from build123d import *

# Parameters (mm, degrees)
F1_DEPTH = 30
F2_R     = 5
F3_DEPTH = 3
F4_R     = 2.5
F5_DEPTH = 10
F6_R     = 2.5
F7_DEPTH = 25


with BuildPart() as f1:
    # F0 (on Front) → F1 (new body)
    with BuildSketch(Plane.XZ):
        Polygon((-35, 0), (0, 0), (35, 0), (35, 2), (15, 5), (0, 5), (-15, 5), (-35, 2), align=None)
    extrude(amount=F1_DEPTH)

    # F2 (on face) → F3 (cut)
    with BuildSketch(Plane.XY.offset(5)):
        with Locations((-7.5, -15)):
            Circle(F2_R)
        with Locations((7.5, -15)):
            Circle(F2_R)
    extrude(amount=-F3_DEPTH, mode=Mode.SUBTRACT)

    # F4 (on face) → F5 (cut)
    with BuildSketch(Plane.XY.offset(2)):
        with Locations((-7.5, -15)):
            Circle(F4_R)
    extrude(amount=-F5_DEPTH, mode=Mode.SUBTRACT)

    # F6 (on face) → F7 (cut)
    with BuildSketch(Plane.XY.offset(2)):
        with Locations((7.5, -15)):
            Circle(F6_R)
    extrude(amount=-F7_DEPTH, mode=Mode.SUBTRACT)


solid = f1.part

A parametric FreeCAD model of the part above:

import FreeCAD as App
import Part
import Sketcher

V = App.Vector
Q = App.Units.Quantity

doc = App.newDocument("Part")
body = doc.addObject("PartDesign::Body", "Body")

# Sketch on XZ plane
sketch1 = doc.addObject("Sketcher::SketchObject", "Sketch")
body.addObject(sketch1)
sketch1.AttachmentSupport = (doc.XZ_Plane, [""])
sketch1.MapMode = "FlatFace"
sketch1.addGeometry([
    Part.LineSegment(V(-35, 0, 0), V(35, 0, 0)),  # 0
    Part.LineSegment(V(35, 0, 0), V(35, 2, 0)),  # 1
    Part.LineSegment(V(35, 2, 0), V(15, 5, 0)),  # 2
    Part.LineSegment(V(15, 5, 0), V(-15, 5, 0)),  # 3
    Part.LineSegment(V(-15, 5, 0), V(-35, 2, 0)),  # 4
    Part.LineSegment(V(-35, 2, 0), V(-35, 0, 0)),  # 5
], False)
sketch1.addConstraint([
    Sketcher.Constraint("Coincident", 0, 2, 1, 1),
    Sketcher.Constraint("Coincident", 1, 2, 2, 1),
    Sketcher.Constraint("Coincident", 2, 2, 3, 1),
    Sketcher.Constraint("Coincident", 3, 2, 4, 1),
    Sketcher.Constraint("Coincident", 4, 2, 5, 1),
    Sketcher.Constraint("Coincident", 5, 2, 0, 1),
    Sketcher.Constraint("Horizontal", 0),
    Sketcher.Constraint("Vertical", 1),
    Sketcher.Constraint("Horizontal", 3),
    Sketcher.Constraint("Vertical", 5),
    Sketcher.Constraint("Symmetric", 0, 2, 5, 2, -1, 1),
    Sketcher.Constraint("Horizontal", 1, 2, 4, 2),
    Sketcher.Constraint("Equal", 2, 4),
    Sketcher.Constraint("DistanceX", 0, 1, 0, 2, Q("70 mm")),
    Sketcher.Constraint("DistanceX", 3, 2, 3, 1, Q("30 mm")),
    Sketcher.Constraint("DistanceY", 1, 1, 1, 2, Q("2 mm")),
    Sketcher.Constraint("DistanceY", -1, 1, 2, 2, Q("5 mm")),
])
pad1 = doc.addObject("PartDesign::Pad", "Pad")
body.addObject(pad1)
pad1.Profile = sketch1
pad1.Length = 30

# Sketch on XY plane
sketch2 = doc.addObject("Sketcher::SketchObject", "Sketch001")
body.addObject(sketch2)
sketch2.AttachmentSupport = (doc.XY_Plane, [""])
sketch2.MapMode = "FlatFace"
sketch2.AttachmentOffset = App.Placement(V(0, 0, 5), App.Rotation())
sketch2.addGeometry([
    Part.Circle(V(-7.5, -15, 0), V(0, 0, 1), 5),
    Part.Circle(V(7.5, -15, 0), V(0, 0, 1), 5),
], False)
sketch2.addConstraint([
    Sketcher.Constraint("Equal", 0, 1),
    Sketcher.Constraint("Symmetric", 0, 3, 1, 3, -2),
    Sketcher.Constraint("Diameter", 0, Q("10 mm")),
    Sketcher.Constraint("DistanceY", 0, 3, -1, 1, Q("15 mm")),
    Sketcher.Constraint("DistanceX", 0, 3, 1, 3, Q("15 mm")),
])
pocket1 = doc.addObject("PartDesign::Pocket", "Pocket")
body.addObject(pocket1)
pocket1.Profile = sketch2
pocket1.Length = 3

# Sketch on XY plane
sketch3 = doc.addObject("Sketcher::SketchObject", "Sketch002")
body.addObject(sketch3)
sketch3.AttachmentSupport = (doc.XY_Plane, [""])
sketch3.MapMode = "FlatFace"
sketch3.AttachmentOffset = App.Placement(V(0, 0, 2), App.Rotation())
sketch3.addGeometry(Part.Circle(V(-7.5, -15, 0), V(0, 0, 1), 2.5), False)
sketch3.addConstraint([
    Sketcher.Constraint("Diameter", 0, Q("5 mm")),
    Sketcher.Constraint("DistanceY", 0, 3, -1, 1, Q("15 mm")),
    Sketcher.Constraint("DistanceX", 0, 3, -1, 1, Q("7.5 mm")),
])
pocket2 = doc.addObject("PartDesign::Pocket", "Pocket001")
body.addObject(pocket2)
pocket2.Profile = sketch3
pocket2.Length = 10

# Sketch on XY plane
sketch4 = doc.addObject("Sketcher::SketchObject", "Sketch003")
body.addObject(sketch4)
sketch4.AttachmentSupport = (doc.XY_Plane, [""])
sketch4.MapMode = "FlatFace"
sketch4.AttachmentOffset = App.Placement(V(0, 0, 2), App.Rotation())
sketch4.addGeometry(Part.Circle(V(7.5, -15, 0), V(0, 0, 1), 2.5), False)
sketch4.addConstraint([
    Sketcher.Constraint("Diameter", 0, Q("5 mm")),
    Sketcher.Constraint("DistanceY", 0, 3, -1, 1, Q("15 mm")),
    Sketcher.Constraint("DistanceX", -1, 1, 0, 3, Q("7.5 mm")),
])
pocket3 = doc.addObject("PartDesign::Pocket", "Pocket002")
body.addObject(pocket3)
pocket3.Profile = sketch4
pocket3.Length = 25

doc.recompute()
